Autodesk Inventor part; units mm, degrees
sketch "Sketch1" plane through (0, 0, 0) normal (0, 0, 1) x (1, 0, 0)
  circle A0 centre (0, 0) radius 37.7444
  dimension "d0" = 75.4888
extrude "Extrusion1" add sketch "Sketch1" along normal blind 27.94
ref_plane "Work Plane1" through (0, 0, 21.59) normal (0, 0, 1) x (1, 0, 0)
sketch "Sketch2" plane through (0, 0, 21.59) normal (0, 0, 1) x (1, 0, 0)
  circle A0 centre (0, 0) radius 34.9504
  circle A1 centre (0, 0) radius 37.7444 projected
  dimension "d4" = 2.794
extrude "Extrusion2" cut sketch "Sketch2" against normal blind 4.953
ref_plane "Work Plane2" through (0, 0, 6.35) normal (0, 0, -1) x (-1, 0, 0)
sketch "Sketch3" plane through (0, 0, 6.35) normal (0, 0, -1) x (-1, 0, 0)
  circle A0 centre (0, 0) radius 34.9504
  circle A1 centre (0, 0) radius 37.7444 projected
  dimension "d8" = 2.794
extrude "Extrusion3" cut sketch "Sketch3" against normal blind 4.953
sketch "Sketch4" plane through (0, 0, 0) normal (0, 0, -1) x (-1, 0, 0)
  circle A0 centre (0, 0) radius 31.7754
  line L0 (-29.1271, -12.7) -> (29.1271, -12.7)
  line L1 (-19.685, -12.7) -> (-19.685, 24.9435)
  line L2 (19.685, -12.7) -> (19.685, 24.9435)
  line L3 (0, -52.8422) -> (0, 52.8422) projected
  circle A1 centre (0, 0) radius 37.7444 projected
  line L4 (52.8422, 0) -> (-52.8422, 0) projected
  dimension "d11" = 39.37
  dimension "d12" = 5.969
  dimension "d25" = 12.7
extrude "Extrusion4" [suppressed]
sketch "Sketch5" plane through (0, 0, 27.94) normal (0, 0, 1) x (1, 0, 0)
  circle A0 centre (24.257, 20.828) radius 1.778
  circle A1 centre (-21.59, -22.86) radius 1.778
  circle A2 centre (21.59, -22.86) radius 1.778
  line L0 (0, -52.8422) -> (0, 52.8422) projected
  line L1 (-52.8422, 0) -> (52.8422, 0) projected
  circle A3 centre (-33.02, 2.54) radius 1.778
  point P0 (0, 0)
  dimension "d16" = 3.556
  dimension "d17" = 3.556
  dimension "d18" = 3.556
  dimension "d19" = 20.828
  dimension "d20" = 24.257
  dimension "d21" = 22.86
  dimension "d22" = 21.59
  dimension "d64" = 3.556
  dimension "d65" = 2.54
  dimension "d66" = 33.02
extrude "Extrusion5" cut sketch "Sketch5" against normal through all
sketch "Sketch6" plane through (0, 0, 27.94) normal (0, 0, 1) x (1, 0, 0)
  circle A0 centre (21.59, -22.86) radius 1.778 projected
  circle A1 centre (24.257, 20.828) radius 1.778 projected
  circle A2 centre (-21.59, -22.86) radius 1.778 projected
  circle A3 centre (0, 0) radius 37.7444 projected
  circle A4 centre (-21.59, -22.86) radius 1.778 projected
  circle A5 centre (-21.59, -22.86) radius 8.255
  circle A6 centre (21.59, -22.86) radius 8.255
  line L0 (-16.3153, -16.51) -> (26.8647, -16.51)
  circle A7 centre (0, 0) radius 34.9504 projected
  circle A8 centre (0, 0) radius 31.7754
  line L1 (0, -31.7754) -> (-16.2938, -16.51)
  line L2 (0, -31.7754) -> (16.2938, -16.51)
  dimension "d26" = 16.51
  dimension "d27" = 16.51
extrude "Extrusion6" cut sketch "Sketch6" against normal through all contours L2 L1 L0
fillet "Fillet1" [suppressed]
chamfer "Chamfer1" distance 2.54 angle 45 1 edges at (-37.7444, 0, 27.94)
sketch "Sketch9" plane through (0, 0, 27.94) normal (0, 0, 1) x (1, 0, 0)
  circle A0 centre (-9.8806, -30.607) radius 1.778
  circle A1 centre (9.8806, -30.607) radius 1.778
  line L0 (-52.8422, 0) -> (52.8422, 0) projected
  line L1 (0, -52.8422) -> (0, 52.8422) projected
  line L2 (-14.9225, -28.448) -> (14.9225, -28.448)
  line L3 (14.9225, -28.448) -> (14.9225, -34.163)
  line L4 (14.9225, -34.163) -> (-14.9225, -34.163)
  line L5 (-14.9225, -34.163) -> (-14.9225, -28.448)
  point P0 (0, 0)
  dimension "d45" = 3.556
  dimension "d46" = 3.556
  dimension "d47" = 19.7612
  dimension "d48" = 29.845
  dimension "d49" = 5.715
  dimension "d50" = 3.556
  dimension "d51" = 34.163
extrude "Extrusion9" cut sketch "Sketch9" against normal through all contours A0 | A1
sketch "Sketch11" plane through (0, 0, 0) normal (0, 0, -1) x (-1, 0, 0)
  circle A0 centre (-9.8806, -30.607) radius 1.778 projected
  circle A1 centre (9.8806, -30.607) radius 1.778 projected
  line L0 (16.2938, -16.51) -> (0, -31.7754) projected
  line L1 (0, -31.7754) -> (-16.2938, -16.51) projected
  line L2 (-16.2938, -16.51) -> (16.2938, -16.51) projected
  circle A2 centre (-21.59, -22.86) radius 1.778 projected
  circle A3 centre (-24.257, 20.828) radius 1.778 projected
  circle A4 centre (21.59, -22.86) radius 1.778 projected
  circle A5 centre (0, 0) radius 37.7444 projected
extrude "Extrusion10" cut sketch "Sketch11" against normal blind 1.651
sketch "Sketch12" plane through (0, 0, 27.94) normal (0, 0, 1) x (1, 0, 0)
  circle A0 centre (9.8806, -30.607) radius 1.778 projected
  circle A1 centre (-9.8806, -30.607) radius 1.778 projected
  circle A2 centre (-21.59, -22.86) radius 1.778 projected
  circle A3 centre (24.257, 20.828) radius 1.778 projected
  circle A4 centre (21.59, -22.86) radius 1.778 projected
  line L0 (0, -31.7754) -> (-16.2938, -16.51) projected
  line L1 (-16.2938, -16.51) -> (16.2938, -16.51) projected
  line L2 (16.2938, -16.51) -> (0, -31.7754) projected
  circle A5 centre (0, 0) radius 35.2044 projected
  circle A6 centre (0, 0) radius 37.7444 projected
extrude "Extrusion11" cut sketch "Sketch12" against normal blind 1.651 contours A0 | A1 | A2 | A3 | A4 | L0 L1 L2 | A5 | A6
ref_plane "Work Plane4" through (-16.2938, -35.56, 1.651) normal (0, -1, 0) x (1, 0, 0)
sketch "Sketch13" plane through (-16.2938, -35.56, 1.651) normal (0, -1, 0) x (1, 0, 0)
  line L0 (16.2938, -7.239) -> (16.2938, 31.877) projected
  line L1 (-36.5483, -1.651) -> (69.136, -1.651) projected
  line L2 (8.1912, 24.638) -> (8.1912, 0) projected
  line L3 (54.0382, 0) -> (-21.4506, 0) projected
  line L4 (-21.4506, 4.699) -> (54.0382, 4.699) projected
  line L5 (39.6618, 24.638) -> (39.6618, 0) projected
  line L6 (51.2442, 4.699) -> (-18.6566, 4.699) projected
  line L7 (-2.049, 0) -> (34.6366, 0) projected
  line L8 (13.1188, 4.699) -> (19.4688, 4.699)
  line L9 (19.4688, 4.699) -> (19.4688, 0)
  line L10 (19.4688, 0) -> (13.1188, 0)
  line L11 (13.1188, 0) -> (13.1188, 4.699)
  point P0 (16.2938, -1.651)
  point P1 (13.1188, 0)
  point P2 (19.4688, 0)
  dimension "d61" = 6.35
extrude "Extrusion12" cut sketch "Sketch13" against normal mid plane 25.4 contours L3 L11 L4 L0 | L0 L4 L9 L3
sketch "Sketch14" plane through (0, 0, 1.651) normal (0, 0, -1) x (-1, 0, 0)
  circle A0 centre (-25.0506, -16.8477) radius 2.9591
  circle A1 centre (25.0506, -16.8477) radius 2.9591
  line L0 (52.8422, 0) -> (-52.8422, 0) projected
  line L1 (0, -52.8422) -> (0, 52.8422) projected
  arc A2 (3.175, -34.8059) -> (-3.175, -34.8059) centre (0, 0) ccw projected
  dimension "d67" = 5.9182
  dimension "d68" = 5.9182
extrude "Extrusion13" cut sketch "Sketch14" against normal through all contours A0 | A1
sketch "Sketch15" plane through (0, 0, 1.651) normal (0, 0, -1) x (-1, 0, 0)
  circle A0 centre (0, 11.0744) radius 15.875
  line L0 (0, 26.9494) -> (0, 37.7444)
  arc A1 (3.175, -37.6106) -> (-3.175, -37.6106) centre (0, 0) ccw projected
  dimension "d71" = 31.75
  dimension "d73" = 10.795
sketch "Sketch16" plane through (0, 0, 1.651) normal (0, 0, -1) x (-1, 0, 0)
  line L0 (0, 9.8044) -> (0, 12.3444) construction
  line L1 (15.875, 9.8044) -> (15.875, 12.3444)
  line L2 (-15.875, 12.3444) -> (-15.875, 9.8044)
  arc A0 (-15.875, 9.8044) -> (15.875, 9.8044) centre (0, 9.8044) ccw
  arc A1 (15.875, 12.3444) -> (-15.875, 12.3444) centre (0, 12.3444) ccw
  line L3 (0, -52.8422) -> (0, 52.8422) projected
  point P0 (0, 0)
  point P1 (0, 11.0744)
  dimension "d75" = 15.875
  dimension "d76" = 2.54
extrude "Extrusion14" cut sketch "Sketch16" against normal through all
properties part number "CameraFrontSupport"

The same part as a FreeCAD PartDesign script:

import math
import FreeCAD as App
import Part
import Sketcher
Q = App.Units.Quantity


def edges_at(feature, points):
    """Names of the edges that pass closest to the given points."""
    edges = feature.Shape.Edges
    near = lambda p: min(range(len(edges)), key=lambda i: edges[i].distToShape(Part.Vertex(*p))[0])
    return sorted({f"Edge{near(p) + 1}" for p in points})

doc = App.newDocument("Part")
body = doc.addObject("PartDesign::Body", "Body")

sketch1 = doc.addObject("Sketcher::SketchObject", "Sketch")
body.addObject(sketch1)
sketch1.AttachmentSupport = (doc.XY_Plane, [""])
sketch1.MapMode = "FlatFace"
sketch1.addGeometry(Part.Circle(App.Vector(0, 0, 0), App.Vector(0, 0, 1), 37.7444), False)
sketch1.addConstraint(Sketcher.Constraint("Coincident", 0, 3, -1, 1))
sketch1.addConstraint(Sketcher.Constraint("Diameter", 0, Q("2.972 in")))
pad1 = doc.addObject("PartDesign::Pad", "Pad")
body.addObject(pad1)
pad1.Profile = sketch1
pad1.Length = Q("1.1 in")

sketch2 = doc.addObject("Sketcher::SketchObject", "Sketch001")
body.addObject(sketch2)
sketch2.AttachmentSupport = (doc.XY_Plane, [""])
sketch2.MapMode = "FlatFace"
sketch2.AttachmentOffset = App.Placement(App.Vector(0, 0, 0.85 * 25.4), App.Rotation())
sketch2.addGeometry(Part.Circle(App.Vector(0, 0, 0), App.Vector(0, 0, 1), 37.7444), False)
sketch2.addGeometry(Part.Circle(App.Vector(0, 0, 0), App.Vector(0, 0, 1), 34.9504), False)
sketch2.addConstraint(Sketcher.Constraint("Coincident", 0, 3, -1, 1))
sketch2.addConstraint(Sketcher.Constraint("Coincident", 1, 3, -1, 1))
sketch2.addConstraint(Sketcher.Constraint("Diameter", 0, Q("2.972 in")))
sketch2.addConstraint(Sketcher.Constraint("Diameter", 1, Q("2.752 in")))
pocket1 = doc.addObject("PartDesign::Pocket", "Pocket")
body.addObject(pocket1)
pocket1.Profile = sketch2
pocket1.Length = Q("0.195 in")

sketch3 = doc.addObject("Sketcher::SketchObject", "Sketch002")
body.addObject(sketch3)
sketch3.AttachmentSupport = (doc.XY_Plane, [""])
sketch3.MapMode = "FlatFace"
sketch3.AttachmentOffset = App.Placement(App.Vector(0, 0, 0.25 * 25.4), App.Rotation())
sketch3.addGeometry(Part.Circle(App.Vector(0, 0, 0), App.Vector(0, 0, 1), 37.7444), False)
sketch3.addGeometry(Part.Circle(App.Vector(0, 0, 0), App.Vector(0, 0, 1), 34.9504), False)
sketch3.addConstraint(Sketcher.Constraint("Coincident", 0, 3, -1, 1))
sketch3.addConstraint(Sketcher.Constraint("Coincident", 1, 3, -1, 1))
sketch3.addConstraint(Sketcher.Constraint("Diameter", 0, Q("2.972 in")))
sketch3.addConstraint(Sketcher.Constraint("Diameter", 1, Q("2.752 in")))
pocket2 = doc.addObject("PartDesign::Pocket", "Pocket001")
body.addObject(pocket2)
pocket2.Profile = sketch3
pocket2.Length = Q("0.195 in")
pocket2.Reversed = True

sketch4 = doc.addObject("Sketcher::SketchObject", "Sketch003")
body.addObject(sketch4)
sketch4.AttachmentSupport = (doc.XY_Plane, [""])
sketch4.MapMode = "FlatFace"
sketch4.AttachmentOffset = App.Placement(App.Vector(0, 0, 1.1 * 25.4), App.Rotation())
sketch4.addGeometry(Part.Circle(App.Vector(24.257, 20.828, 0), App.Vector(0, 0, 1), 1.778), False)
sketch4.addGeometry(Part.Circle(App.Vector(-21.59, -22.86, 0), App.Vector(0, 0, 1), 1.778), False)
sketch4.addGeometry(Part.Circle(App.Vector(21.59, -22.86, 0), App.Vector(0, 0, 1), 1.778), False)
sketch4.addGeometry(Part.Circle(App.Vector(-33.02, 2.54, 0), App.Vector(0, 0, 1), 1.778), False)
sketch4.addConstraint(Sketcher.Constraint("Equal", 0, 1))
sketch4.addConstraint(Sketcher.Constraint("Equal", 1, 2))
sketch4.addConstraint(Sketcher.Constraint("Equal", 2, 3))
sketch4.addConstraint(Sketcher.Constraint("Symmetric", 1, 3, 2, 3, -2))
sketch4.addConstraint(Sketcher.Constraint("Diameter", 0, Q("0.14 in")))
sketch4.addConstraint(Sketcher.Constraint("DistanceY", 1, 3, -1, 1, Q("0.9 in")))
sketch4.addConstraint(Sketcher.Constraint("DistanceX", 3, 3, -1, 1, Q("1.3 in")))
sketch4.addConstraint(Sketcher.Constraint("DistanceY", -1, 1, 3, 3, Q("0.1 in")))
sketch4.addConstraint(Sketcher.Constraint("DistanceY", -1, 1, 0, 3, Q("0.82 in")))
sketch4.addConstraint(Sketcher.Constraint("DistanceX", 1, 3, -1, 1, Q("0.85 in")))
sketch4.addConstraint(Sketcher.Constraint("DistanceX", -1, 1, 0, 3, Q("0.955 in")))
pocket3 = doc.addObject("PartDesign::Pocket", "Pocket002")
body.addObject(pocket3)
pocket3.Profile = sketch4
pocket3.Type = "ThroughAll"

sketch5 = doc.addObject("Sketcher::SketchObject", "Sketch004")
body.addObject(sketch5)
sketch5.AttachmentSupport = (doc.XY_Plane, [""])
sketch5.MapMode = "FlatFace"
sketch5.AttachmentOffset = App.Placement(App.Vector(0, 0, 1.1 * 25.4), App.Rotation())
sketch5.addGeometry(Part.LineSegment(App.Vector(0, -31.7754, 0), App.Vector(16.2938, -16.51, 0)), False)
sketch5.addGeometry(Part.LineSegment(App.Vector(16.2938, -16.51, 0), App.Vector(-16.2938, -16.51, 0)), False)
sketch5.addGeometry(Part.LineSegment(App.Vector(-16.2938, -16.51, 0), App.Vector(0, -31.7754, 0)), False)
sketch5.addConstraint(Sketcher.Constraint("Coincident", 0, 2, 1, 1))
sketch5.addConstraint(Sketcher.Constraint("Coincident", 1, 2, 2, 1))
sketch5.addConstraint(Sketcher.Constraint("Coincident", 2, 2, 0, 1))
sketch5.addConstraint(Sketcher.Constraint("Horizontal", 1))
sketch5.addConstraint(Sketcher.Constraint("PointOnObject", 2, 2, -2))
sketch5.addConstraint(Sketcher.Constraint("Equal", 0, 2))
sketch5.addConstraint(Sketcher.Constraint("DistanceY", 0, 2, -1, 1, Q("0.65 in")))
sketch5.addConstraint(Sketcher.Constraint("DistanceY", 2, 2, -1, 1, Q("1.251 in")))
sketch5.addConstraint(Sketcher.Constraint("DistanceX", 1, 2, 1, 1, 32.5876))
pocket4 = doc.addObject("PartDesign::Pocket", "Pocket003")
body.addObject(pocket4)
pocket4.Profile = sketch5
pocket4.Type = "ThroughAll"
doc.recompute()

chamfer = doc.addObject("PartDesign::Chamfer", "Chamfer")
body.addObject(chamfer)
chamfer.Base = (pocket4, edges_at(pocket4, [(-37.744, 0, 27.94)]))
chamfer.Size = Q("0.1 in")

sketch6 = doc.addObject("Sketcher::SketchObject", "Sketch005")
body.addObject(sketch6)
sketch6.AttachmentSupport = (doc.XY_Plane, [""])
sketch6.MapMode = "FlatFace"
sketch6.AttachmentOffset = App.Placement(App.Vector(0, 0, 1.1 * 25.4), App.Rotation())
sketch6.addGeometry(Part.Circle(App.Vector(-9.8806, -30.607, 0), App.Vector(0, 0, 1), 1.778), False)
sketch6.addGeometry(Part.Circle(App.Vector(9.8806, -30.607, 0), App.Vector(0, 0, 1), 1.778), False)
sketch6.addConstraint(Sketcher.Constraint("Equal", 0, 1))
sketch6.addConstraint(Sketcher.Constraint("Symmetric", 0, 3, 1, 3, -2))
sketch6.addConstraint(Sketcher.Constraint("Diameter", 0, Q("0.14 in")))
sketch6.addConstraint(Sketcher.Constraint("DistanceX", 0, 3, 1, 3, Q("0.778 in")))
sketch6.addConstraint(Sketcher.Constraint("DistanceY", 0, 3, -1, 1, Q("1.205 in")))
pocket5 = doc.addObject("PartDesign::Pocket", "Pocket004")
body.addObject(pocket5)
pocket5.Profile = sketch6
pocket5.Type = "ThroughAll"

sketch7 = doc.addObject("Sketcher::SketchObject", "Sketch006")
body.addObject(sketch7)
sketch7.AttachmentSupport = (doc.XY_Plane, [""])
sketch7.MapMode = "FlatFace"
sketch7.addGeometry(Part.Circle(App.Vector(0, 0, 0), App.Vector(0, 0, 1), 37.7444), False)
sketch7.addGeometry(Part.Circle(App.Vector(21.59, -22.86, 0), App.Vector(0, 0, 1), 1.778), False)
sketch7.addGeometry(Part.Circle(App.Vector(9.8806, -30.607, 0), App.Vector(0, 0, 1), 1.778), False)
sketch7.addGeometry(Part.Circle(App.Vector(-9.8806, -30.607, 0), App.Vector(0, 0, 1), 1.778), False)
sketch7.addGeometry(Part.LineSegment(App.Vector(16.2938, -16.51, 0), App.Vector(-16.2938, -16.51, 0)), False)
sketch7.addGeometry(Part.LineSegment(App.Vector(-16.2938, -16.51, 0), App.Vector(0, -31.7754, 0)), False)
sketch7.addGeometry(Part.LineSegment(App.Vector(0, -31.7754, 0), App.Vector(16.2938, -16.51, 0)), False)
sketch7.addGeometry(Part.Circle(App.Vector(-21.59, -22.86, 0), App.Vector(0, 0, 1), 1.778), False)
sketch7.addGeometry(Part.Circle(App.Vector(24.257, 20.828, 0), App.Vector(0, 0, 1), 1.778), False)
sketch7.addConstraint(Sketcher.Constraint("Coincident", 4, 2, 5, 1))
sketch7.addConstraint(Sketcher.Constraint("Coincident", 5, 2, 6, 1))
sketch7.addConstraint(Sketcher.Constraint("Coincident", 6, 2, 4, 1))
sketch7.addConstraint(Sketcher.Constraint("Horizontal", 4))
sketch7.addConstraint(Sketcher.Constraint("Coincident", 0, 3, -1, 1))
sketch7.addConstraint(Sketcher.Constraint("Equal", 1, 2))
sketch7.addConstraint(Sketcher.Constraint("Equal", 2, 3))
sketch7.addConstraint(Sketcher.Constraint("Equal", 3, 7))
sketch7.addConstraint(Sketcher.Constraint("Equal", 7, 8))
sketch7.addConstraint(Sketcher.Constraint("Symmetric", 2, 3, 3, 3, -2))
sketch7.addConstraint(Sketcher.Constraint("Symmetric", 1, 3, 7, 3, -2))
sketch7.addConstraint(Sketcher.Constraint("PointOnObject", 5, 2, -2))
sketch7.addConstraint(Sketcher.Constraint("Equal", 5, 6))
sketch7.addConstraint(Sketcher.Constraint("Diameter", 1, Q("0.14 in")))
sketch7.addConstraint(Sketcher.Constraint("Diameter", 0, Q("2.972 in")))
sketch7.addConstraint(Sketcher.Constraint("DistanceY", 1, 3, -1, 1, Q("0.9 in")))
sketch7.addConstraint(Sketcher.Constraint("DistanceX", 7, 3, 1, 3, Q("1.7 in")))
sketch7.addConstraint(Sketcher.Constraint("DistanceY", -1, 1, 8, 3, Q("0.82 in")))
sketch7.addConstraint(Sketcher.Constraint("DistanceY", 4, 2, -1, 1, Q("0.65 in")))
sketch7.addConstraint(Sketcher.Constraint("DistanceX", -1, 1, 2, 3, Q("0.389 in")))
sketch7.addConstraint(Sketcher.Constraint("DistanceY", 2, 3, -1, 1, Q("1.205 in")))
sketch7.addConstraint(Sketcher.Constraint("DistanceX", -1, 1, 8, 3, Q("0.955 in")))
sketch7.addConstraint(Sketcher.Constraint("DistanceY", 5, 2, -1, 1, Q("1.251 in")))
sketch7.addConstraint(Sketcher.Constraint("DistanceX", 4, 2, 4, 1, 32.5876))
pocket6 = doc.addObject("PartDesign::Pocket", "Pocket005")
body.addObject(pocket6)
pocket6.Profile = sketch7
pocket6.Length = Q("0.065 in")
pocket6.Reversed = True

sketch8 = doc.addObject("Sketcher::SketchObject", "Sketch007")
body.addObject(sketch8)
sketch8.AttachmentSupport = (doc.XY_Plane, [""])
sketch8.MapMode = "FlatFace"
sketch8.AttachmentOffset = App.Placement(App.Vector(0, 0, 1.1 * 25.4), App.Rotation())
sketch8.addGeometry(Part.Circle(App.Vector(0, 0, 0), App.Vector(0, 0, 1), 37.7444), False)
sketch8.addConstraint(Sketcher.Constraint("Coincident", 0, 3, -1, 1))
sketch8.addConstraint(Sketcher.Constraint("Diameter", 0, Q("2.972 in")))
pocket7 = doc.addObject("PartDesign::Pocket", "Pocket006")
body.addObject(pocket7)
pocket7.Profile = sketch8
pocket7.Length = Q("0.065 in")

sketch9 = doc.addObject("Sketcher::SketchObject", "Sketch008")
body.addObject(sketch9)
sketch9.AttachmentSupport = (doc.XZ_Plane, [""])
sketch9.MapMode = "FlatFace"
sketch9.AttachmentOffset = App.Placement(App.Vector(0, 0, 1.4 * 25.4), App.Rotation())
sketch9.addGeometry(Part.LineSegment(App.Vector(-3.175, 1.651, 0), App.Vector(3.175, 1.651, 0)), False)
sketch9.addGeometry(Part.LineSegment(App.Vector(3.175, 1.651, 0), App.Vector(3.175, 6.35, 0)), False)
sketch9.addGeometry(Part.LineSegment(App.Vector(3.175, 6.35, 0), App.Vector(-3.175, 6.35, 0)), False)
sketch9.addGeometry(Part.LineSegment(App.Vector(-3.175, 6.35, 0), App.Vector(-3.175, 1.651, 0)), False)
sketch9.addConstraint(Sketcher.Constraint("Coincident", 0, 2, 1, 1))
sketch9.addConstraint(Sketcher.Constraint("Coincident", 1, 2, 2, 1))
sketch9.addConstraint(Sketcher.Constraint("Coincident", 2, 2, 3, 1))
sketch9.addConstraint(Sketcher.Constraint("Coincident", 3, 2, 0, 1))
sketch9.addConstraint(Sketcher.Constraint("Horizontal", 0))
sketch9.addConstraint(Sketcher.Constraint("Vertical", 1))
sketch9.addConstraint(Sketcher.Constraint("Horizontal", 2))
sketch9.addConstraint(Sketcher.Constraint("Vertical", 3))
sketch9.addConstraint(Sketcher.Constraint("DistanceX", 0, 1, 0, 2, Q("0.25 in")))
sketch9.addConstraint(Sketcher.Constraint("DistanceY", -1, 1, 1, 2, Q("0.25 in")))
sketch9.addConstraint(Sketcher.Constraint("DistanceY", 1, 1, 1, 2, Q("0.185 in")))
sketch9.addConstraint(Sketcher.Constraint("DistanceX", -1, 1, 0, 2, Q("0.125 in")))
pocket8 = doc.addObject("PartDesign::Pocket", "Pocket007")
body.addObject(pocket8)
pocket8.Profile = sketch9
pocket8.Length = Q("1 in")
pocket8.Midplane = True

sketch10 = doc.addObject("Sketcher::SketchObject", "Sketch009")
body.addObject(sketch10)
sketch10.AttachmentSupport = (doc.XY_Plane, [""])
sketch10.MapMode = "FlatFace"
sketch10.AttachmentOffset = App.Placement(App.Vector(0, 0, 0.065 * 25.4), App.Rotation())
sketch10.addGeometry(Part.Circle(App.Vector(25.0506, -16.8477, 0), App.Vector(0, 0, 1), 2.9591), False)
sketch10.addGeometry(Part.Circle(App.Vector(-25.0506, -16.8477, 0), App.Vector(0, 0, 1), 2.9591), False)
sketch10.addConstraint(Sketcher.Constraint("Equal", 0, 1))
sketch10.addConstraint(Sketcher.Constraint("Symmetric", 0, 3, 1, 3, -2))
sketch10.addConstraint(Sketcher.Constraint("Diameter", 0, Q("0.233 in")))
sketch10.addConstraint(Sketcher.Constraint("DistanceY", 0, 3, -1, 1, Q("0.6633 in")))
sketch10.addConstraint(Sketcher.Constraint("DistanceX", 1, 3, 0, 3, Q("1.9725 in")))
pocket9 = doc.addObject("PartDesign::Pocket", "Pocket008")
body.addObject(pocket9)
pocket9.Profile = sketch10
pocket9.Type = "ThroughAll"
pocket9.Reversed = True

sketch11 = doc.addObject("Sketcher::SketchObject", "Sketch010")
body.addObject(sketch11)
sketch11.AttachmentSupport = (doc.XY_Plane, [""])
sketch11.MapMode = "FlatFace"
sketch11.AttachmentOffset = App.Placement(App.Vector(0, 0, 0.065 * 25.4), App.Rotation())
sketch11.addGeometry(Part.LineSegment(App.Vector(-15.875, 9.8044, 0), App.Vector(-15.875, 12.3444, 0)), False)
sketch11.addGeometry(Part.ArcOfCircle(Part.Circle(App.Vector(0, 12.3444, 0), App.Vector(0, 0, 1), 15.875), math.radians(0), math.radians(180)), False)
sketch11.addGeometry(Part.LineSegment(App.Vector(15.875, 12.3444, 0), App.Vector(15.875, 9.8044, 0)), False)
sketch11.addGeometry(Part.ArcOfCircle(Part.Circle(App.Vector(0, 9.8044, 0), App.Vector(0, 0, 1), 15.875), math.radians(180), math.radians(360)), False)
sketch11.addConstraint(Sketcher.Constraint("Tangent", 0, 2, 1, 2))
sketch11.addConstraint(Sketcher.Constraint("Tangent", 1, 1, 2, 1))
sketch11.addConstraint(Sketcher.Constraint("Tangent", 2, 2, 3, 2))
sketch11.addConstraint(Sketcher.Constraint("Tangent", 3, 1, 0, 1))
sketch11.addConstraint(Sketcher.Constraint("Vertical", 0))
sketch11.addConstraint(Sketcher.Constraint("Vertical", 2))
sketch11.addConstraint(Sketcher.Constraint("PointOnObject", 1, 3, -2))
sketch11.addConstraint(Sketcher.Constraint("DistanceY", 0, 1, 0, 2, Q("0.1 in")))
sketch11.addConstraint(Sketcher.Constraint("Radius", 1, Q("0.625 in")))
sketch11.addConstraint(Sketcher.Constraint("DistanceY", -1, 1, 1, 3, Q("0.486 in")))
pocket10 = doc.addObject("PartDesign::Pocket", "Pocket009")
body.addObject(pocket10)
pocket10.Profile = sketch11
pocket10.Type = "ThroughAll"
pocket10.Reversed = True

doc.recompute()
